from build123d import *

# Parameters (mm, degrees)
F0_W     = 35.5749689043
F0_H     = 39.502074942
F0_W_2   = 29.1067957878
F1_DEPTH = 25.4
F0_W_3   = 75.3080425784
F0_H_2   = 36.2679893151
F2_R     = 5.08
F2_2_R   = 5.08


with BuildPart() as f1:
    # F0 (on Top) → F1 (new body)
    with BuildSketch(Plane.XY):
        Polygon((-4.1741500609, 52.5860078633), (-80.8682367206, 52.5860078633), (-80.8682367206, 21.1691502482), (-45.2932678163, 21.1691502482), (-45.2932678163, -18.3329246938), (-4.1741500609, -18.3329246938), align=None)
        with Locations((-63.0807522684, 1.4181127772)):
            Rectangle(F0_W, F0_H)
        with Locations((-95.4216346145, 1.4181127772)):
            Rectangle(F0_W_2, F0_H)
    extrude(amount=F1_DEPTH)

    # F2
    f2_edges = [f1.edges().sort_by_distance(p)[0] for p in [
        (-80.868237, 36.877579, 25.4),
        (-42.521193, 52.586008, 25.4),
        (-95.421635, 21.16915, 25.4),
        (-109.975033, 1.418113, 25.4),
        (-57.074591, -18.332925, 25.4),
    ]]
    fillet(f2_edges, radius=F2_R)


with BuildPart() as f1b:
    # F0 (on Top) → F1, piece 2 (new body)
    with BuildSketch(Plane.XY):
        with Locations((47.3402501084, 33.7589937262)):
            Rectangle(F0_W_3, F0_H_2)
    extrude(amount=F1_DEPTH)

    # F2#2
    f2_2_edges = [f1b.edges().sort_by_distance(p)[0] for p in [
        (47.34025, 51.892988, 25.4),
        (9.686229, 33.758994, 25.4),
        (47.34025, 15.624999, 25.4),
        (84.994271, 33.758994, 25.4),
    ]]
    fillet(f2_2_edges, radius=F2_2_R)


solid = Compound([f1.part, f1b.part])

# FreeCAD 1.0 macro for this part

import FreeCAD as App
import Part
import Sketcher
Q = App.Units.Quantity


def edges_at(feature, points):
    """Names of the edges that pass closest to the given points."""
    edges = feature.Shape.Edges
    near = lambda p: min(range(len(edges)), key=lambda i: edges[i].distToShape(Part.Vertex(*p))[0])
    return sorted({f"Edge{near(p) + 1}" for p in points})

doc = App.newDocument("Part")
body = doc.addObject("PartDesign::Body", "Body")

sketch1 = body.newObject("Sketcher::SketchObject", "Sketch")
sketch1.AttachmentSupport = (doc.getObject("XY_Plane"), [""])
sketch1.MapMode = "FlatFace"
sketch1.addGeometry([
    Part.LineSegment(App.Vector(-4.17415, 52.586008, 0), App.Vector(-80.868237, 52.586008, 0)),
    Part.LineSegment(App.Vector(-80.868237, 52.586008, 0), App.Vector(-80.868237, 21.16915, 0)),
    Part.LineSegment(App.Vector(-80.868237, 21.16915, 0), App.Vector(-109.975033, 21.16915, 0)),
    Part.LineSegment(App.Vector(-109.975033, 21.16915, 0), App.Vector(-109.975033, -18.332925, 0)),
    Part.LineSegment(App.Vector(-109.975033, -18.332925, 0), App.Vector(-4.17415, -18.332925, 0)),
    Part.LineSegment(App.Vector(-4.17415, -18.332925, 0), App.Vector(-4.17415, 52.586008, 0)),
], False)
sketch1.addConstraint([
    Sketcher.Constraint("Coincident", 0, 2, 1, 1),
    Sketcher.Constraint("Coincident", 1, 2, 2, 1),
    Sketcher.Constraint("Coincident", 2, 2, 3, 1),
    Sketcher.Constraint("Coincident", 3, 2, 4, 1),
    Sketcher.Constraint("Coincident", 4, 2, 5, 1),
    Sketcher.Constraint("Coincident", 5, 2, 0, 1),
    Sketcher.Constraint("Horizontal", 0),
    Sketcher.Constraint("Vertical", 1),
    Sketcher.Constraint("Horizontal", 2),
    Sketcher.Constraint("Vertical", 3),
    Sketcher.Constraint("Horizontal", 4),
    Sketcher.Constraint("Vertical", 5),
    Sketcher.Constraint("DistanceY", 3, 2, 3, 1, Q("1.5551998 in")),
    Sketcher.Constraint("DistanceX", 0, 2, 0, 1, Q("76.694087 mm")),
    Sketcher.Constraint("DistanceX", 2, 2, 2, 1, Q("29.106796 mm")),
    Sketcher.Constraint("DistanceY", 1, 2, 1, 1, Q("31.416858 mm")),
    Sketcher.Constraint("DistanceY", -1, 1, 1, 2, Q("21.16915 mm")),
    Sketcher.Constraint("DistanceX", 4, 2, -1, 1, Q("4.17415 mm")),
])
pad1 = body.newObject("PartDesign::Pad", "Pad")
pad1.Profile = sketch1
pad1.Length = Q("1 in")
doc.recompute()

fillet = body.newObject("PartDesign::Fillet", "Fillet")
fillet.Base = (pad1, edges_at(pad1, [
    (-80.868, 36.878, 25.4),
    (-42.521, 52.586, 25.4),
    (-95.422, 21.169, 25.4),
    (-109.975, 1.418, 25.4),
    (-57.075, -18.333, 25.4),
]))
fillet.Radius = Q("0.2 in")
body2 = doc.addObject("PartDesign::Body", "Body001")

sketch2 = body2.newObject("Sketcher::SketchObject", "Sketch001")
sketch2.AttachmentSupport = (doc.getObject("XY_Plane001"), [""])
sketch2.MapMode = "FlatFace"
sketch2.addGeometry([
    Part.LineSegment(App.Vector(9.686229, 51.892988, 0), App.Vector(9.686229, 15.624999, 0)),
    Part.LineSegment(App.Vector(9.686229, 15.624999, 0), App.Vector(84.994271, 15.624999, 0)),
    Part.LineSegment(App.Vector(84.994271, 15.624999, 0), App.Vector(84.994271, 51.892988, 0)),
    Part.LineSegment(App.Vector(84.994271, 51.892988, 0), App.Vector(9.686229, 51.892988, 0)),
], False)
sketch2.addConstraint([
    Sketcher.Constraint("Coincident", 0, 2, 1, 1),
    Sketcher.Constraint("Coincident", 1, 2, 2, 1),
    Sketcher.Constraint("Coincident", 2, 2, 3, 1),
    Sketcher.Constraint("Coincident", 3, 2, 0, 1),
    Sketcher.Constraint("Vertical", 0),
    Sketcher.Constraint("Horizontal", 1),
    Sketcher.Constraint("Vertical", 2),
    Sketcher.Constraint("Horizontal", 3),
    Sketcher.Constraint("DistanceY", 0, 2, 0, 1, Q("36.267989 mm")),
    Sketcher.Constraint("DistanceY", -1, 1, 0, 2, Q("15.624999 mm")),
    Sketcher.Constraint("DistanceX", 1, 1, 1, 2, Q("75.308043 mm")),
    Sketcher.Constraint("DistanceX", -1, 1, 0, 2, Q("9.686229 mm")),
])
pad2 = body2.newObject("PartDesign::Pad", "Pad001")
pad2.Profile = sketch2
pad2.Length = Q("1 in")
doc.recompute()

fillet2 = body2.newObject("PartDesign::Fillet", "Fillet001")
fillet2.Base = (pad2, edges_at(pad2, [
    (47.34, 51.893, 25.4),
    (9.686, 33.759, 25.4),
    (47.34, 15.625, 25.4),
    (84.994, 33.759, 25.4),
]))
fillet2.Radius = Q("0.2 in")

doc.recompute()
